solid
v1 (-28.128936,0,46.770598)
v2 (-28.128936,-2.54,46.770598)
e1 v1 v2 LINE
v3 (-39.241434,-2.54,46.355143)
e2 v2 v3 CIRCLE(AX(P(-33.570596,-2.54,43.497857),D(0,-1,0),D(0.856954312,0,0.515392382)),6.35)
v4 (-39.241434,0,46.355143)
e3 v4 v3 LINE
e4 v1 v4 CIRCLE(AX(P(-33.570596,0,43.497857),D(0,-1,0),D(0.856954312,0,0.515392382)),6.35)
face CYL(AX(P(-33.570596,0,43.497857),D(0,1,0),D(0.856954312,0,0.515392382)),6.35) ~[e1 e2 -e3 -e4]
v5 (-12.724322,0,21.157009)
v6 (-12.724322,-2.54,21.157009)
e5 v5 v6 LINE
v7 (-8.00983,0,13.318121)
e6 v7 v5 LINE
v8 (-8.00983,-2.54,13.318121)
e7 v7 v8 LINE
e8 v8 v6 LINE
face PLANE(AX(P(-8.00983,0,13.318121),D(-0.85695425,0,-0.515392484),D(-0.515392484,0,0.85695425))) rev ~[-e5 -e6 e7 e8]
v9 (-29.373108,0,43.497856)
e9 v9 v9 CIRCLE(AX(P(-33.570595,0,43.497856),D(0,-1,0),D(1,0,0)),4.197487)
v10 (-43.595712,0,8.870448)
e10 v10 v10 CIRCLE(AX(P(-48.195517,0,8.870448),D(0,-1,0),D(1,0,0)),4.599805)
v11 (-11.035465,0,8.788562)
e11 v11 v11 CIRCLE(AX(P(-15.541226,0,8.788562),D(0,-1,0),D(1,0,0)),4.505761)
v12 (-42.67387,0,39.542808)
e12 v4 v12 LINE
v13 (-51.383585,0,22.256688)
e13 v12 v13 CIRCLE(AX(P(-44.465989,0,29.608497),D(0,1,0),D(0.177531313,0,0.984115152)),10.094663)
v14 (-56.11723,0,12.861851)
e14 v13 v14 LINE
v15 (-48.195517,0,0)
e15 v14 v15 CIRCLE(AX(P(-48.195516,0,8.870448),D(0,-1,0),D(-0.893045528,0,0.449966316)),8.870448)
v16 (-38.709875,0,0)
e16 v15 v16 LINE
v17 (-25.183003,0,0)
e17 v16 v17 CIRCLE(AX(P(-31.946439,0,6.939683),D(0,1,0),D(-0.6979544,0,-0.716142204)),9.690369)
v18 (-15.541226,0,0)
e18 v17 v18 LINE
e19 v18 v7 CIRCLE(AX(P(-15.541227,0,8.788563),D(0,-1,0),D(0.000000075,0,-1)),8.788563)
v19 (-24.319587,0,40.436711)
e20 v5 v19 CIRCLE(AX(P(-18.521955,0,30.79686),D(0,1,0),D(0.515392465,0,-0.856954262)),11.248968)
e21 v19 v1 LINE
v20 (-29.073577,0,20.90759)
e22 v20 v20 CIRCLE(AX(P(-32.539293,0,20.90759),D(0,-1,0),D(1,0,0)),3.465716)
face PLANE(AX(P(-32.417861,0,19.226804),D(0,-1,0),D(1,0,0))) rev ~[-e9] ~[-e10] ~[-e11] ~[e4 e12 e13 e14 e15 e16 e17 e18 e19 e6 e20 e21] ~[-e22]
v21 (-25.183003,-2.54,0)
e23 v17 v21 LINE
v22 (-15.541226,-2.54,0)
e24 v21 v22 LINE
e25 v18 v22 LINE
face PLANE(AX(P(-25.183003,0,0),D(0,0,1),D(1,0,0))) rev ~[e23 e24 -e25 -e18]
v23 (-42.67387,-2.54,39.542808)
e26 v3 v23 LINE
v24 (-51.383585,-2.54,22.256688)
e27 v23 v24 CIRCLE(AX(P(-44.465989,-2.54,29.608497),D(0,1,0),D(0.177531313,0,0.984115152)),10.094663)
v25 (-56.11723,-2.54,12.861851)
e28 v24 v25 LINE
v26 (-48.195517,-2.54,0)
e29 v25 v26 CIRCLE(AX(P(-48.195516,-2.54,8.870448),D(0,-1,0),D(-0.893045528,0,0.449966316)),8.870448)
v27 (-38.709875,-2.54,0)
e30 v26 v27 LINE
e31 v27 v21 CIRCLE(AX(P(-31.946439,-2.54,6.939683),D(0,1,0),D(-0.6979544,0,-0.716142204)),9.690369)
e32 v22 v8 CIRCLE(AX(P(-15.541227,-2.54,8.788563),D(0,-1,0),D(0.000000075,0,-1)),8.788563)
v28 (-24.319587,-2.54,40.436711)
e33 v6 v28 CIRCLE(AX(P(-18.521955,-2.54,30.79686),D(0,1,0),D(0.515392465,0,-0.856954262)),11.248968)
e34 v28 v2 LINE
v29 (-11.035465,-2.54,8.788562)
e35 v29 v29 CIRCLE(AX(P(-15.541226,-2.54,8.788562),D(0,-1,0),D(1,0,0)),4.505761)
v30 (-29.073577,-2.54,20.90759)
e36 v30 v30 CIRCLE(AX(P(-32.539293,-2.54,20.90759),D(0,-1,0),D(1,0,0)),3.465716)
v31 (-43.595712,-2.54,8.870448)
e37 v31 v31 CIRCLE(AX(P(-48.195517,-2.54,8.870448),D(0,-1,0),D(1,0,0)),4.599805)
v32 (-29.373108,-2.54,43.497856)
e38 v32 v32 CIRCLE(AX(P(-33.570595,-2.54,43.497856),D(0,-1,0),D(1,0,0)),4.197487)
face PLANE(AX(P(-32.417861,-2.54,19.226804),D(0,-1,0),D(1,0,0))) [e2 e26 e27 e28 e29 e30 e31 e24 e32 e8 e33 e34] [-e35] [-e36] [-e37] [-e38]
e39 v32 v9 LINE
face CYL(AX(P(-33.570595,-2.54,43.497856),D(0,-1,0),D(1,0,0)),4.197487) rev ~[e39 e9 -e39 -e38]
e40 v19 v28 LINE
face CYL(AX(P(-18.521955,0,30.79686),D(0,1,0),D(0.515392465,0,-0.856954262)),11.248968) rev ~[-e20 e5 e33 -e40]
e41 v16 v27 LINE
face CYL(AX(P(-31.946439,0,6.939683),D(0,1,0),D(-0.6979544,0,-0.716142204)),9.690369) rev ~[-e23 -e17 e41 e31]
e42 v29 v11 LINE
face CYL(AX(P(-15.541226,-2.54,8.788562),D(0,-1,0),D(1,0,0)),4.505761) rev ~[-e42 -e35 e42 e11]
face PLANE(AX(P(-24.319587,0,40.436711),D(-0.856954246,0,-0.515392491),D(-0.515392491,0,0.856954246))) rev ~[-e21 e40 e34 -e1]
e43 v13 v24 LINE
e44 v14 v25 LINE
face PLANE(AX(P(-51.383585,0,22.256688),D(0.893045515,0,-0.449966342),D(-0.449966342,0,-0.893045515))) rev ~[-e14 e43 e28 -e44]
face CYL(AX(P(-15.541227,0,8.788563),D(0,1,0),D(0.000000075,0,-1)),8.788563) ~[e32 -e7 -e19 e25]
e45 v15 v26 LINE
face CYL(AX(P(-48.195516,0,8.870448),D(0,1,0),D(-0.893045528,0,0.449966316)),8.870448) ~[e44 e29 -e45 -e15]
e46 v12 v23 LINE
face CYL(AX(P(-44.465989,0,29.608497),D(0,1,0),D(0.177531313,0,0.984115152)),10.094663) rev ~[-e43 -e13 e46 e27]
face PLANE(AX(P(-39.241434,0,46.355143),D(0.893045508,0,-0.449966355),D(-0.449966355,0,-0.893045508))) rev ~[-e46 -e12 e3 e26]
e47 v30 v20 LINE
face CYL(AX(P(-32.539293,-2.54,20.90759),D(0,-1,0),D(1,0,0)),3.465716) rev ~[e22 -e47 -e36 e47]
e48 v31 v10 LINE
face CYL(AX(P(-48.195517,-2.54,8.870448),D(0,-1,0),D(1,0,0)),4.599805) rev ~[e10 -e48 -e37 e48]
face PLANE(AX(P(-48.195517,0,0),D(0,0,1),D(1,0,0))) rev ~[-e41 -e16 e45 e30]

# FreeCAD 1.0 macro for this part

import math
import FreeCAD as App
import Part
import Sketcher
from FreeCAD import Vector
Q = App.Units.Quantity

doc = App.newDocument("Part")
body = doc.addObject("PartDesign::Body", "Body")

# Sketch on XZ plane
sketch1 = doc.addObject("Sketcher::SketchObject", "Sketch")
body.addObject(sketch1)
sketch1.AttachmentSupport = (doc.XZ_Plane, [""])
sketch1.MapMode = "FlatFace"
sketch1.addGeometry([
    Part.ArcOfCircle(Part.Circle(Vector(-16, 9, 0), Vector(0, 0, 1), 9), math.radians(-90), math.radians(31)),  # 0
    Part.LineSegment(Vector(-8, 13, 0), Vector(-13, 21, 0)),  # 1
    Part.ArcOfCircle(Part.Circle(Vector(-19, 31, 0), Vector(0, 0, 1), 11), math.radians(121), math.radians(301)),  # 2
    Part.LineSegment(Vector(-24, 40, 0), Vector(-28, 47, 0)),  # 3
    Part.ArcOfCircle(Part.Circle(Vector(-34, 43, 0), Vector(0, 0, 1), 6), math.radians(31), math.radians(153)),  # 4
    Part.LineSegment(Vector(-39, 46, 0), Vector(-43, 40, 0)),  # 5
    Part.ArcOfCircle(Part.Circle(Vector(-44, 30, 0), Vector(0, 0, 1), 10), math.radians(-133), math.radians(80)),  # 6
    Part.LineSegment(Vector(-51, 22, 0), Vector(-56, 13, 0)),  # 7
    Part.ArcOfCircle(Part.Circle(Vector(-48, 9, 0), Vector(0, 0, 1), 9), math.radians(153), math.radians(270)),  # 8
    Part.LineSegment(Vector(-48, 0, 0), Vector(-39, 0, 0)),  # 9
    Part.ArcOfCircle(Part.Circle(Vector(-32, 7, 0), Vector(0, 0, 1), 10), math.radians(-46), math.radians(226)),  # 10
    Part.LineSegment(Vector(-25, 0, 0), Vector(-16, 0, 0)),  # 11
], False)
sketch1.addConstraint([
    Sketcher.Constraint("Tangent", 0, 2, 1, 1),
    Sketcher.Constraint("Coincident", 1, 2, 2, 2),
    Sketcher.Constraint("Coincident", 2, 1, 3, 1),
    Sketcher.Constraint("Tangent", 3, 2, 4, 1),
    Sketcher.Constraint("Tangent", 4, 2, 5, 1),
    Sketcher.Constraint("Coincident", 5, 2, 6, 2),
    Sketcher.Constraint("Coincident", 6, 1, 7, 1),
    Sketcher.Constraint("Tangent", 7, 2, 8, 1),
    Sketcher.Constraint("Tangent", 8, 2, 9, 1),
    Sketcher.Constraint("Coincident", 9, 2, 10, 2),
    Sketcher.Constraint("Coincident", 10, 1, 11, 1),
    Sketcher.Constraint("Tangent", 11, 2, 0, 1),
    Sketcher.Constraint("Horizontal", 9),
    Sketcher.Constraint("Horizontal", 11),
    Sketcher.Constraint("PointOnObject", 8, 2, -1),
    Sketcher.Constraint("PointOnObject", 10, 1, -1),
    Sketcher.Constraint("Parallel", 1, 3),
    Sketcher.Constraint("Parallel", 5, 7),
    Sketcher.Constraint("Radius", 4, Q("0.25 in")),
    Sketcher.Constraint("Radius", 8, Q("8.870448 mm")),
    Sketcher.Constraint("Radius", 10, Q("9.690369 mm")),
    Sketcher.Constraint("DistanceX", 4, 2, 3, 2, Q("0.4374999 in")),
    Sketcher.Constraint("Radius", 0, Q("8.788563 mm")),
    Sketcher.Constraint("Radius", 2, Q("11.248968 mm")),
    Sketcher.Constraint("Radius", 6, Q("10.094663 mm")),
    Sketcher.Constraint("DistanceY", 1, 2, 2, 1, Q("19.279702 mm")),
    Sketcher.Constraint("DistanceX", 6, 3, 2, 1, Q("20.146402 mm")),
    Sketcher.Constraint("DistanceY", 6, 3, 3, 2, Q("17.162101 mm")),
    Sketcher.Constraint("Distance", 3, Q("7.391161 mm")),
    Sketcher.Constraint("DistanceX", 9, 1, 9, 2, Q("9.485642 mm")),
    Sketcher.Constraint("DistanceX", 11, 1, 11, 2, Q("9.641777 mm")),
    Sketcher.Constraint("DistanceY", -1, 1, 2, 3, Q("30.79686 mm")),
    Sketcher.Constraint("DistanceX", 6, 3, -1, 1, Q("44.465989 mm")),
    Sketcher.Constraint("DistanceX", 10, 3, -1, 1, Q("31.946439 mm")),
    Sketcher.Constraint("DistanceX", 0, 2, -1, 1, Q("8.00983 mm")),
    Sketcher.Constraint("DistanceY", -1, 1, 0, 2, Q("13.318121 mm")),
])
pad1 = doc.addObject("PartDesign::Pad", "Pad")
body.addObject(pad1)
pad1.Profile = sketch1
pad1.Length = Q("0.1 in")

# Sketch on XZ plane
sketch2 = doc.addObject("Sketcher::SketchObject", "Sketch001")
body.addObject(sketch2)
sketch2.AttachmentSupport = (doc.XZ_Plane, [""])
sketch2.MapMode = "FlatFace"
sketch2.AttachmentOffset = App.Placement(Vector(0, 0, 0.1 * 25.4), App.Rotation())
sketch2.addGeometry(Part.Circle(Vector(-32.5, 20.9, 0), Vector(0, 0, 1), 3.5), False)
sketch2.addConstraint([
    Sketcher.Constraint("Diameter", 0, Q("6.931432 mm")),
    Sketcher.Constraint("DistanceY", -1, 1, 0, 3, Q("20.90759 mm")),
    Sketcher.Constraint("DistanceX", 0, 3, -1, 1, Q("32.539293 mm")),
])
pocket1 = doc.addObject("PartDesign::Pocket", "Pocket")
body.addObject(pocket1)
pocket1.Profile = sketch2
pocket1.Length = Q("1 in")

# Sketch on XZ plane
sketch3 = doc.addObject("Sketcher::SketchObject", "Sketch002")
body.addObject(sketch3)
sketch3.AttachmentSupport = (doc.XZ_Plane, [""])
sketch3.MapMode = "FlatFace"
sketch3.AttachmentOffset = App.Placement(Vector(0, 0, 0.1 * 25.4), App.Rotation())
sketch3.addGeometry([
    Part.Circle(Vector(-48.2, 8.9, 0), Vector(0, 0, 1), 4.6),
    Part.Circle(Vector(-15.5, 8.8, 0), Vector(0, 0, 1), 4.5),
], False)
sketch3.addConstraint([
    Sketcher.Constraint("Diameter", 0, Q("9.19961 mm")),
    Sketcher.Constraint("Diameter", 1, Q("9.011522 mm")),
    Sketcher.Constraint("DistanceX", 0, 3, 1, 3, Q("32.654291 mm")),
    Sketcher.Constraint("DistanceX", 0, 3, -1, 1, Q("48.195517 mm")),
    Sketcher.Constraint("DistanceY", -1, 1, 0, 3, Q("8.870448 mm")),
    Sketcher.Constraint("DistanceY", -1, 1, 1, 3, Q("8.788562 mm")),
])
pocket2 = doc.addObject("PartDesign::Pocket", "Pocket001")
body.addObject(pocket2)
pocket2.Profile = sketch3
pocket2.Length = Q("1 in")

# Sketch on XZ plane
sketch4 = doc.addObject("Sketcher::SketchObject", "Sketch003")
body.addObject(sketch4)
sketch4.AttachmentSupport = (doc.XZ_Plane, [""])
sketch4.MapMode = "FlatFace"
sketch4.AttachmentOffset = App.Placement(Vector(0, 0, 0.1 * 25.4), App.Rotation())
sketch4.addGeometry(Part.Circle(Vector(-33.6, 43.5, 0), Vector(0, 0, 1), 4.2), False)
sketch4.addConstraint([
    Sketcher.Constraint("Diameter", 0, Q("8.394974 mm")),
    Sketcher.Constraint("DistanceX", 0, 3, -1, 1, Q("33.570595 mm")),
    Sketcher.Constraint("DistanceY", -1, 1, 0, 3, Q("43.497856 mm")),
])
pocket3 = doc.addObject("PartDesign::Pocket", "Pocket002")
body.addObject(pocket3)
pocket3.Profile = sketch4
pocket3.Length = Q("1 in")

doc.recompute()
